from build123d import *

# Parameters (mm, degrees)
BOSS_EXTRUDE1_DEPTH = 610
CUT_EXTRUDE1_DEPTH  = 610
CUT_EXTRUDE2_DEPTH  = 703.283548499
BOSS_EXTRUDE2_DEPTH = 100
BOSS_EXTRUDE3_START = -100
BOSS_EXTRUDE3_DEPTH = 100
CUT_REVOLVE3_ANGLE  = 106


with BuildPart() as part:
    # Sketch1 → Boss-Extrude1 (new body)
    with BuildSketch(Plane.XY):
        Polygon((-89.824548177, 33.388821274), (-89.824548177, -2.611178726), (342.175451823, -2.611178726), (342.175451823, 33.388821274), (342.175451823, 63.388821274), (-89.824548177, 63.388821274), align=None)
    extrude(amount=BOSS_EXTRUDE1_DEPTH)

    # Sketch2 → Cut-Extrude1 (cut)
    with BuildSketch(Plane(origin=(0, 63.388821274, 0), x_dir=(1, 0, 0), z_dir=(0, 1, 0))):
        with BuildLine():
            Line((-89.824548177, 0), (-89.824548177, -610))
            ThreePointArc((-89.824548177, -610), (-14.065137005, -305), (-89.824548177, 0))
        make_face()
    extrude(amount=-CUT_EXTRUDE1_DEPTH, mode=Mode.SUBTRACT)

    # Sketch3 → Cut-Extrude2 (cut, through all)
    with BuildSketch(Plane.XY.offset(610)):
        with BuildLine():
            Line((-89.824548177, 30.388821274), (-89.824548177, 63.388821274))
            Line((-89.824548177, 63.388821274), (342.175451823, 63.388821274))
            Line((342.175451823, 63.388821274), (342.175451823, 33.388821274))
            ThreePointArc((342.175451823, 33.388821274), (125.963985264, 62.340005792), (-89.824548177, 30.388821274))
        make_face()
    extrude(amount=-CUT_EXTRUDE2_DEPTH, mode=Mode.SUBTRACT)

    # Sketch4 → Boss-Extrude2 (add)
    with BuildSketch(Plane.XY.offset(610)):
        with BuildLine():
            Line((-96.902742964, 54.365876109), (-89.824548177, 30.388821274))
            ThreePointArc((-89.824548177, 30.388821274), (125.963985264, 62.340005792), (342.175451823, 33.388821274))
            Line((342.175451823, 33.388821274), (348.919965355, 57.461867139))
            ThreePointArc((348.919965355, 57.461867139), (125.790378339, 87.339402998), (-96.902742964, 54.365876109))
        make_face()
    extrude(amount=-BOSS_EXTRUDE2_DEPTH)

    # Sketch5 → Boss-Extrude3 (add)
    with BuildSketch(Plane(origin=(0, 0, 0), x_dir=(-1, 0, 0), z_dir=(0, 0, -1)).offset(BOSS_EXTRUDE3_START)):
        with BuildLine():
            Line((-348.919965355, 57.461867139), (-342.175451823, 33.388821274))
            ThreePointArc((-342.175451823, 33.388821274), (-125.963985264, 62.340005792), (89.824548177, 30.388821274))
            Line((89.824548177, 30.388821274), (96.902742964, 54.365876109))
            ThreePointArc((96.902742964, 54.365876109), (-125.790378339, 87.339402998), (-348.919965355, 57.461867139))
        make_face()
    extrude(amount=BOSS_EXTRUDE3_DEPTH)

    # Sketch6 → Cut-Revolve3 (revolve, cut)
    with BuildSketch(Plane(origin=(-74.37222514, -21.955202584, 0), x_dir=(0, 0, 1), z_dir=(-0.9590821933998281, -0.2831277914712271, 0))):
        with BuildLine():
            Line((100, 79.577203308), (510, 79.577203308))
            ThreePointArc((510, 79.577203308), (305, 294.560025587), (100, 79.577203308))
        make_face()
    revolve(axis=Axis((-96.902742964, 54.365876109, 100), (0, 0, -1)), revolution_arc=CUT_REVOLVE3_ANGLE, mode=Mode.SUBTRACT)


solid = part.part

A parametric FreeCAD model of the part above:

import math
import FreeCAD as App
import Part
import Sketcher

V = App.Vector
Q = App.Units.Quantity


def add_polygon(sketch, points):
    """Adds a closed chain of lines whose ends are joined by coincident constraints."""
    first, n = sketch.GeometryCount, len(points)
    for a, b in zip(points, points[1:] + points[:1]):
        sketch.addGeometry(Part.LineSegment(App.Vector(*a, 0), App.Vector(*b, 0)), False)
    for i in range(n):
        sketch.addConstraint(Sketcher.Constraint("Coincident", first + i, 2, first + (i + 1) % n, 1))

doc = App.newDocument("Part")
body = doc.addObject("PartDesign::Body", "Body")

# Sketch on XY plane
sketch1 = doc.addObject("Sketcher::SketchObject", "Sketch")
body.addObject(sketch1)
sketch1.AttachmentSupport = (doc.XY_Plane, [""])
sketch1.MapMode = "FlatFace"
add_polygon(sketch1, [(-90, -3), (342, -3), (342, 63), (-90, 63)])  # lines 0-3
sketch1.addConstraint([
    Sketcher.Constraint("Horizontal", 0),
    Sketcher.Constraint("Vertical", 1),
    Sketcher.Constraint("Horizontal", 2),
    Sketcher.Constraint("Vertical", 3),
    Sketcher.Constraint("DistanceX", 0, 1, 0, 2, Q("432 mm")),
    Sketcher.Constraint("DistanceY", 1, 1, 1, 2, Q("66 mm")),
    Sketcher.Constraint("DistanceX", -1, 1, 0, 2, Q("342.175452 mm")),
    Sketcher.Constraint("DistanceY", 0, 2, -1, 1, Q("2.611179 mm")),
])
pad1 = doc.addObject("PartDesign::Pad", "Pad")
body.addObject(pad1)
pad1.Profile = sketch1
pad1.Length = 610

# Sketch on XZ plane
sketch2 = doc.addObject("Sketcher::SketchObject", "Sketch001")
body.addObject(sketch2)
sketch2.AttachmentSupport = (doc.XZ_Plane, [""])
sketch2.MapMode = "FlatFace"
sketch2.AttachmentOffset = App.Placement(V(0, 0, -63.388821), App.Rotation())
sketch2.addGeometry([
    Part.LineSegment(V(-90, 0, 0), V(-90, 610, 0)),
    Part.ArcOfCircle(Part.Circle(V(-666, 305, 0), V(0, 0, 1), 652), math.radians(-28), math.radians(28)),
], False)
sketch2.addConstraint([
    Sketcher.Constraint("Coincident", 0, 1, 1, 1),
    Sketcher.Constraint("Coincident", 1, 2, 0, 2),
    Sketcher.Constraint("Vertical", 0),
    Sketcher.Constraint("PointOnObject", 0, 1, -1),
    Sketcher.Constraint("DistanceY", 0, 1, 0, 2, Q("610 mm")),
    Sketcher.Constraint("Radius", 1, Q("651.829831 mm")),
    Sketcher.Constraint("DistanceX", 1, 3, -1, 1, Q("665.894968 mm")),
])
pocket1 = doc.addObject("PartDesign::Pocket", "Pocket")
body.addObject(pocket1)
pocket1.Profile = sketch2
pocket1.Length = 610
pocket1.Reversed = True

# Sketch on XY plane
sketch3 = doc.addObject("Sketcher::SketchObject", "Sketch002")
body.addObject(sketch3)
sketch3.AttachmentSupport = (doc.XY_Plane, [""])
sketch3.MapMode = "FlatFace"
sketch3.AttachmentOffset = App.Placement(V(0, 0, 610), App.Rotation())
sketch3.addGeometry([
    Part.LineSegment(V(-90, 63, 0), V(-90, 30, 0)),
    Part.ArcOfCircle(Part.Circle(V(131, -719, 0), V(0, 0, 1), 781), math.radians(74), math.radians(106)),
    Part.LineSegment(V(342, 33, 0), V(342, 63, 0)),
    Part.LineSegment(V(342, 63, 0), V(-90, 63, 0)),
], False)
sketch3.addConstraint([
    Sketcher.Constraint("Coincident", 0, 2, 1, 2),
    Sketcher.Constraint("Coincident", 1, 1, 2, 1),
    Sketcher.Constraint("Coincident", 2, 2, 3, 1),
    Sketcher.Constraint("Coincident", 3, 2, 0, 1),
    Sketcher.Constraint("Vertical", 0),
    Sketcher.Constraint("Vertical", 2),
    Sketcher.Constraint("Horizontal", 3),
    Sketcher.Constraint("DistanceX", 3, 2, 3, 1, Q("432 mm")),
    Sketcher.Constraint("DistanceY", 0, 2, 0, 1, Q("33 mm")),
    Sketcher.Constraint("DistanceY", 2, 1, 2, 2, Q("30 mm")),
    Sketcher.Constraint("Radius", 1, Q("781.323005 mm")),
    Sketcher.Constraint("DistanceX", -1, 1, 1, 3, Q("131.389709 mm")),
    Sketcher.Constraint("DistanceY", 1, 3, -1, 1, Q("718.96416 mm")),
])
pocket2 = doc.addObject("PartDesign::Pocket", "Pocket001")
body.addObject(pocket2)
pocket2.Profile = sketch3
pocket2.Type = "ThroughAll"

# Sketch on XY plane
sketch4 = doc.addObject("Sketcher::SketchObject", "Sketch003")
body.addObject(sketch4)
sketch4.AttachmentSupport = (doc.XY_Plane, [""])
sketch4.MapMode = "FlatFace"
sketch4.AttachmentOffset = App.Placement(V(0, 0, 610), App.Rotation())
sketch4.addGeometry([
    Part.LineSegment(V(-97, 54, 0), V(-90, 30, 0)),
    Part.ArcOfCircle(Part.Circle(V(131, -719, 0), V(0, 0, 1), 781), math.radians(74), math.radians(106)),
    Part.LineSegment(V(342, 33, 0), V(349, 57, 0)),
    Part.ArcOfCircle(Part.Circle(V(131, -719, 0), V(0, 0, 1), 806), math.radians(74), math.radians(106)),
], False)
sketch4.addConstraint([
    Sketcher.Constraint("Coincident", 0, 2, 1, 2),
    Sketcher.Constraint("Coincident", 1, 1, 2, 1),
    Sketcher.Constraint("Coincident", 2, 2, 3, 1),
    Sketcher.Constraint("Coincident", 3, 2, 0, 1),
    Sketcher.Constraint("Coincident", 3, 3, 1, 3),
    Sketcher.Constraint("Distance", 0, Q("25 mm")),
    Sketcher.Constraint("DistanceY", 0, 2, 1, 1, Q("3 mm")),
    Sketcher.Constraint("Radius", 1, Q("781.323005 mm")),
    Sketcher.Constraint("DistanceX", -1, 1, 1, 3, Q("131.389709 mm")),
    Sketcher.Constraint("DistanceY", 1, 3, -1, 1, Q("718.96416 mm")),
    Sketcher.Constraint("DistanceX", 0, 2, -1, 1, Q("89.824548 mm")),
    Sketcher.Constraint("DistanceX", -1, 1, 2, 2, Q("348.919965 mm")),
    Sketcher.Constraint("Angle", 0, Q("-73.55303 deg")),
])
pad2 = doc.addObject("PartDesign::Pad", "Pad001")
body.addObject(pad2)
pad2.Profile = sketch4
pad2.Length = 100
pad2.Reversed = True

# Sketch on XY plane
sketch5 = doc.addObject("Sketcher::SketchObject", "Sketch004")
body.addObject(sketch5)
sketch5.AttachmentSupport = (doc.XY_Plane, [""])
sketch5.MapMode = "FlatFace"
sketch5.AttachmentOffset = App.Placement(V(0, 0, 100), App.Rotation())
sketch5.addGeometry([
    Part.LineSegment(V(349, 57, 0), V(342, 33, 0)),
    Part.ArcOfCircle(Part.Circle(V(131, -719, 0), V(0, 0, 1), 781), math.radians(74), math.radians(106)),
    Part.LineSegment(V(-90, 30, 0), V(-97, 54, 0)),
    Part.ArcOfCircle(Part.Circle(V(131, -719, 0), V(0, 0, 1), 806), math.radians(74), math.radians(106)),
], False)
sketch5.addConstraint([
    Sketcher.Constraint("Coincident", 0, 2, 1, 1),
    Sketcher.Constraint("Coincident", 1, 2, 2, 1),
    Sketcher.Constraint("Coincident", 2, 2, 3, 2),
    Sketcher.Constraint("Coincident", 3, 1, 0, 1),
    Sketcher.Constraint("Coincident", 3, 3, 1, 3),
    Sketcher.Constraint("Distance", 0, Q("25 mm")),
    Sketcher.Constraint("DistanceY", 1, 2, 0, 2, Q("3 mm")),
    Sketcher.Constraint("Radius", 1, Q("781.323005 mm")),
    Sketcher.Constraint("DistanceX", -1, 1, 1, 3, Q("131.389709 mm")),
    Sketcher.Constraint("DistanceY", 1, 3, -1, 1, Q("718.96416 mm")),
    Sketcher.Constraint("DistanceX", -1, 1, 0, 2, Q("342.175452 mm")),
    Sketcher.Constraint("DistanceX", 2, 2, 3, 3, Q("228.292452 mm")),
    Sketcher.Constraint("Angle", 0, Q("-105.651208 deg")),
])
pad3 = doc.addObject("PartDesign::Pad", "Pad002")
body.addObject(pad3)
pad3.Profile = sketch5
pad3.Length = 100
pad3.Reversed = True

# Sketch on an angled plane
sketch6 = doc.addObject("Sketcher::SketchObject", "Sketch005")
body.addObject(sketch6)
sketch6.Placement = App.Placement(V(-74.372225, -21.955203, 0), App.Rotation(V(0, 0, 1), V(-0.283127791, 0.959082193, 0), V(-0.959082193, -0.283127791, 0), "ZXY"))
sketch6.addGeometry([
    Part.LineSegment(V(100, 80, 0), V(510, 80, 0)),
    Part.ArcOfCircle(Part.Circle(V(305, 89, 0), V(0, 0, 1), 205), math.radians(-3), math.radians(183)),
], False)
sketch6.addGeometry(Part.LineSegment(V(510, 80, 0), V(100, 80, 0)), True)  # axis
sketch6.addConstraint([
    Sketcher.Constraint("Coincident", 0, 1, 1, 2),
    Sketcher.Constraint("Coincident", 1, 1, 0, 2),
    Sketcher.Constraint("Horizontal", 0),
    Sketcher.Constraint("Horizontal", 2),
    Sketcher.Constraint("Coincident", 2, 1, 1, 1),
    Sketcher.Constraint("Equal", 0, 2),
    Sketcher.Constraint("DistanceX", 0, 1, 0, 2, Q("410 mm")),
    Sketcher.Constraint("DistanceX", -1, 1, 1, 3, Q("305 mm")),
    Sketcher.Constraint("Radius", 1, Q("205.231778 mm")),
    Sketcher.Constraint("DistanceY", -1, 1, 1, 3, Q("89.328247 mm")),
])
groove = doc.addObject("PartDesign::Groove", "Groove")
body.addObject(groove)
groove.Profile = sketch6
groove.ReferenceAxis = (sketch6, ["Axis0"])
groove.Angle = 106

doc.recompute()
